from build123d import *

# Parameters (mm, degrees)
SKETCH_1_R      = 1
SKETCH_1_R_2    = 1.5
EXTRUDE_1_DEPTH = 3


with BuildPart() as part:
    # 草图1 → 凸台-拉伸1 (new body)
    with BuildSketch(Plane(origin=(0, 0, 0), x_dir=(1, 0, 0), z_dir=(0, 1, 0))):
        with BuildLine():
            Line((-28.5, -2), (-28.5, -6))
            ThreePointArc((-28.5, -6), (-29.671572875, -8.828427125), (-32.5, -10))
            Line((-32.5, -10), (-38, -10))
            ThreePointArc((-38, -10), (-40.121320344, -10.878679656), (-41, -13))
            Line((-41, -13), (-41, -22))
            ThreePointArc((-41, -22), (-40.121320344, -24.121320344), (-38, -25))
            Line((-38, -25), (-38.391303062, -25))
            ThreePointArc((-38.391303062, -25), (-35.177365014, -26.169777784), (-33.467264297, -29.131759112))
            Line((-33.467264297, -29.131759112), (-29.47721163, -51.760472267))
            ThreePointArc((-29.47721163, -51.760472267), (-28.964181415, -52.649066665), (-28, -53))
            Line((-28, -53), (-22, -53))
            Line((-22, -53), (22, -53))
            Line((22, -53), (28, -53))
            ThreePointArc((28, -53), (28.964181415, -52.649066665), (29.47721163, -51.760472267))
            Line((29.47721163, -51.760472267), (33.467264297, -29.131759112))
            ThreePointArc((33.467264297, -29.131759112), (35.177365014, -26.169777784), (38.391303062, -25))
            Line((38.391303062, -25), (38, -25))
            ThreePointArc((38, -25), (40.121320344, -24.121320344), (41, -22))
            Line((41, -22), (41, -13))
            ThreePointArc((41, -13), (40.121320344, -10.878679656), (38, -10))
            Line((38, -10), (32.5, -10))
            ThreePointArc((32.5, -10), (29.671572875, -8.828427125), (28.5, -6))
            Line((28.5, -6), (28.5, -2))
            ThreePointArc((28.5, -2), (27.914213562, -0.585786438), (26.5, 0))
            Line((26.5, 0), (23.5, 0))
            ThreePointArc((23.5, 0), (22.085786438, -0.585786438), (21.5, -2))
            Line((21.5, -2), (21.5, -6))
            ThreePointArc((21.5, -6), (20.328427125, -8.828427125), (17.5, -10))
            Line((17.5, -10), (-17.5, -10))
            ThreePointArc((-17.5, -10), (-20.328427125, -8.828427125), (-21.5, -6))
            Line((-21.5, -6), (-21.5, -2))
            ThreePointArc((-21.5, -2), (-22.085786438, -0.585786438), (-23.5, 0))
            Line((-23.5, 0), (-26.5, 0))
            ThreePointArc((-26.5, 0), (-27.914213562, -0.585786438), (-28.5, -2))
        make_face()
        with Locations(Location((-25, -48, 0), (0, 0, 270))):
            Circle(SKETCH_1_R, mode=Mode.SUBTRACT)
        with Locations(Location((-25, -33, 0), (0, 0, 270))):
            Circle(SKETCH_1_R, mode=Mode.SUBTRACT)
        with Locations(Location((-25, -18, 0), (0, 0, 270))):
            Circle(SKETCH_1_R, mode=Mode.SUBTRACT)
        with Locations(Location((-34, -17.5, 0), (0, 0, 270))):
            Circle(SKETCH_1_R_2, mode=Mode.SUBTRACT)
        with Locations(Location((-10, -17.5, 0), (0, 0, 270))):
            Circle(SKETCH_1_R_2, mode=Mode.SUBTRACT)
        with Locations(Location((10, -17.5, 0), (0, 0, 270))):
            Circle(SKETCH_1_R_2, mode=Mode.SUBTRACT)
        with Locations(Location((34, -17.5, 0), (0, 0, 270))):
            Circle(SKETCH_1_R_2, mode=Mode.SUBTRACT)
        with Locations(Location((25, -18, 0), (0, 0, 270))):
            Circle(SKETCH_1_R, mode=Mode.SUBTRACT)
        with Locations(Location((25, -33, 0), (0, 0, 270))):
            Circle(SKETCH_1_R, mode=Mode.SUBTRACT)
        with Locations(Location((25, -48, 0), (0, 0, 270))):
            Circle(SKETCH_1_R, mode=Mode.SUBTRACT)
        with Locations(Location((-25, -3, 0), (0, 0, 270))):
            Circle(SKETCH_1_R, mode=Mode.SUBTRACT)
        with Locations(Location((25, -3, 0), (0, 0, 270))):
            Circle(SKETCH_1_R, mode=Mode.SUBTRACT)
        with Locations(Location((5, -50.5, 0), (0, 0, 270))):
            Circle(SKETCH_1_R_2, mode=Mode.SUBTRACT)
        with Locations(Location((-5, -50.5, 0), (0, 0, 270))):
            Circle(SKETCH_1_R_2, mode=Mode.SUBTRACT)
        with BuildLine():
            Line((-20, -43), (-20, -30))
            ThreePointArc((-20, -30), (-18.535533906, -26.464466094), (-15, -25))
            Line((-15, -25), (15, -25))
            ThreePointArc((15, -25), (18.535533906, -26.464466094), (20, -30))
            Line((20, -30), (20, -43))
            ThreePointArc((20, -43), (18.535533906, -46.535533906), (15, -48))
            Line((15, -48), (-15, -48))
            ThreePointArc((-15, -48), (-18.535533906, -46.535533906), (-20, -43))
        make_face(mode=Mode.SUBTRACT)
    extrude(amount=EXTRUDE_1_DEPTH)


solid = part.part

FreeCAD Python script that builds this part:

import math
import FreeCAD as App
import Part
import Sketcher
from FreeCAD import Vector
Q = App.Units.Quantity

doc = App.newDocument("Part")
params = doc.addObject("Spreadsheet::Sheet", "Params")
for row, (alias, value) in enumerate([
    ("sketch1_diameter", "2 mm"),
    ("sketch1_diameter2", "3 mm"),
    ("sketch1_radius", "4 mm"),
    ("sketch1_radius2", "3 mm"),
    ("sketch1_radius3", "5 mm"),
    ("pad1_length", "3 mm"),
], start=1):
    params.set(f"A{row}", alias)
    params.set(f"B{row}", "=" + value)
    params.setAlias(f"B{row}", alias)

body = doc.addObject("PartDesign::Body", "Body")

sketch1 = doc.addObject("Sketcher::SketchObject", "Sketch")
body.addObject(sketch1)
sketch1.AttachmentSupport = (doc.XZ_Plane, [""])
sketch1.MapMode = "FlatFace"
sketch1.addGeometry([
    Part.LineSegment(Vector(-28.5, 2, 0), Vector(-28.5, 6, 0)),
    Part.ArcOfCircle(Part.Circle(Vector(-32.5, 6, 0), Vector(0, 0, 1), 4), math.radians(0), math.radians(90)),
    Part.LineSegment(Vector(-32.5, 10, 0), Vector(-38, 10, 0)),
    Part.ArcOfCircle(Part.Circle(Vector(-38, 13, 0), Vector(0, 0, 1), 3), math.radians(180), math.radians(270)),
    Part.LineSegment(Vector(-41, 13, 0), Vector(-41, 22, 0)),
    Part.ArcOfCircle(Part.Circle(Vector(-38, 22, 0), Vector(0, 0, 1), 3), math.radians(90), math.radians(180)),
    Part.LineSegment(Vector(-38, 25, 0), Vector(-38.39, 25, 0)),
    Part.ArcOfCircle(Part.Circle(Vector(-38.39, 30, 0), Vector(0, 0, 1), 5), math.radians(-90), math.radians(-10)),
    Part.LineSegment(Vector(-33.47, 29.13, 0), Vector(-29.48, 51.76, 0)),
    Part.ArcOfCircle(Part.Circle(Vector(-28, 51.5, 0), Vector(0, 0, 1), 1.5), math.radians(90), math.radians(170)),
    Part.LineSegment(Vector(-28, 53, 0), Vector(28, 53, 0)),
    Part.ArcOfCircle(Part.Circle(Vector(28, 51.5, 0), Vector(0, 0, 1), 1.5), math.radians(10), math.radians(90)),
    Part.LineSegment(Vector(29.48, 51.76, 0), Vector(33.47, 29.13, 0)),
    Part.ArcOfCircle(Part.Circle(Vector(38.39, 30, 0), Vector(0, 0, 1), 5), math.radians(-170), math.radians(-90)),
    Part.LineSegment(Vector(38.39, 25, 0), Vector(38, 25, 0)),
    Part.ArcOfCircle(Part.Circle(Vector(38, 22, 0), Vector(0, 0, 1), 3), math.radians(0), math.radians(90)),
    Part.LineSegment(Vector(41, 22, 0), Vector(41, 13, 0)),
    Part.ArcOfCircle(Part.Circle(Vector(38, 13, 0), Vector(0, 0, 1), 3), math.radians(-90), math.radians(0)),
    Part.LineSegment(Vector(38, 10, 0), Vector(32.5, 10, 0)),
    Part.ArcOfCircle(Part.Circle(Vector(32.5, 6, 0), Vector(0, 0, 1), 4), math.radians(90), math.radians(180)),
    Part.LineSegment(Vector(28.5, 6, 0), Vector(28.5, 2, 0)),
    Part.ArcOfCircle(Part.Circle(Vector(26.5, 2, 0), Vector(0, 0, 1), 2), math.radians(-90), math.radians(0)),
    Part.LineSegment(Vector(26.5, 0, 0), Vector(23.5, 0, 0)),
    Part.ArcOfCircle(Part.Circle(Vector(23.5, 2, 0), Vector(0, 0, 1), 2), math.radians(-180), math.radians(-90)),
    Part.LineSegment(Vector(21.5, 2, 0), Vector(21.5, 6, 0)),
    Part.ArcOfCircle(Part.Circle(Vector(17.5, 6, 0), Vector(0, 0, 1), 4), math.radians(0), math.radians(90)),
    Part.LineSegment(Vector(17.5, 10, 0), Vector(-17.5, 10, 0)),
    Part.ArcOfCircle(Part.Circle(Vector(-17.5, 6, 0), Vector(0, 0, 1), 4), math.radians(90), math.radians(180)),
    Part.LineSegment(Vector(-21.5, 6, 0), Vector(-21.5, 2, 0)),
    Part.ArcOfCircle(Part.Circle(Vector(-23.5, 2, 0), Vector(0, 0, 1), 2), math.radians(-90), math.radians(0)),
    Part.LineSegment(Vector(-23.5, 0, 0), Vector(-26.5, 0, 0)),
    Part.ArcOfCircle(Part.Circle(Vector(-26.5, 2, 0), Vector(0, 0, 1), 2), math.radians(-180), math.radians(-90)),
    Part.Circle(Vector(-25, 48, 0), Vector(0, 0, 1), 1),
    Part.Circle(Vector(-5, 50.5, 0), Vector(0, 0, 1), 1.5),
    Part.Circle(Vector(-25, 33, 0), Vector(0, 0, 1), 1),
    Part.Circle(Vector(5, 50.5, 0), Vector(0, 0, 1), 1.5),
    Part.Circle(Vector(25, 48, 0), Vector(0, 0, 1), 1),
    Part.ArcOfCircle(Part.Circle(Vector(-15, 43, 0), Vector(0, 0, 1), 5), math.radians(90), math.radians(180)),
    Part.LineSegment(Vector(-20, 43, 0), Vector(-20, 30, 0)),
    Part.ArcOfCircle(Part.Circle(Vector(-15, 30, 0), Vector(0, 0, 1), 5), math.radians(180), math.radians(270)),
    Part.LineSegment(Vector(-15, 25, 0), Vector(15, 25, 0)),
    Part.ArcOfCircle(Part.Circle(Vector(15, 30, 0), Vector(0, 0, 1), 5), math.radians(-90), math.radians(0)),
    Part.LineSegment(Vector(20, 30, 0), Vector(20, 43, 0)),
    Part.ArcOfCircle(Part.Circle(Vector(15, 43, 0), Vector(0, 0, 1), 5), math.radians(0), math.radians(90)),
    Part.LineSegment(Vector(15, 48, 0), Vector(-15, 48, 0)),
    Part.Circle(Vector(25, 33, 0), Vector(0, 0, 1), 1),
    Part.Circle(Vector(-34, 17.5, 0), Vector(0, 0, 1), 1.5),
    Part.Circle(Vector(-25, 18, 0), Vector(0, 0, 1), 1),
    Part.Circle(Vector(-10, 17.5, 0), Vector(0, 0, 1), 1.5),
    Part.Circle(Vector(-25, 3, 0), Vector(0, 0, 1), 1),
    Part.Circle(Vector(10, 17.5, 0), Vector(0, 0, 1), 1.5),
    Part.Circle(Vector(25, 18, 0), Vector(0, 0, 1), 1),
    Part.Circle(Vector(34, 17.5, 0), Vector(0, 0, 1), 1.5),
    Part.Circle(Vector(25, 3, 0), Vector(0, 0, 1), 1),
], False)
sketch1.addConstraint([
    Sketcher.Constraint("Tangent", 0, 2, 1, 1),
    Sketcher.Constraint("Tangent", 1, 2, 2, 1),
    Sketcher.Constraint("Tangent", 2, 2, 3, 2),
    Sketcher.Constraint("Tangent", 3, 1, 4, 1),
    Sketcher.Constraint("Tangent", 4, 2, 5, 2),
    Sketcher.Constraint("Tangent", 5, 1, 6, 1),
    Sketcher.Constraint("Tangent", 6, 2, 7, 1),
    Sketcher.Constraint("Tangent", 7, 2, 8, 1),
    Sketcher.Constraint("Tangent", 8, 2, 9, 2),
    Sketcher.Constraint("Tangent", 9, 1, 10, 1),
    Sketcher.Constraint("Tangent", 10, 2, 11, 2),
    Sketcher.Constraint("Tangent", 11, 1, 12, 1),
    Sketcher.Constraint("Tangent", 12, 2, 13, 1),
    Sketcher.Constraint("Tangent", 13, 2, 14, 1),
    Sketcher.Constraint("Tangent", 14, 2, 15, 2),
    Sketcher.Constraint("Tangent", 15, 1, 16, 1),
    Sketcher.Constraint("Tangent", 16, 2, 17, 2),
    Sketcher.Constraint("Tangent", 17, 1, 18, 1),
    Sketcher.Constraint("Tangent", 18, 2, 19, 1),
    Sketcher.Constraint("Tangent", 19, 2, 20, 1),
    Sketcher.Constraint("Tangent", 20, 2, 21, 2),
    Sketcher.Constraint("Tangent", 21, 1, 22, 1),
    Sketcher.Constraint("Tangent", 22, 2, 23, 2),
    Sketcher.Constraint("Tangent", 23, 1, 24, 1),
    Sketcher.Constraint("Tangent", 24, 2, 25, 1),
    Sketcher.Constraint("Tangent", 25, 2, 26, 1),
    Sketcher.Constraint("Tangent", 26, 2, 27, 1),
    Sketcher.Constraint("Tangent", 27, 2, 28, 1),
    Sketcher.Constraint("Tangent", 28, 2, 29, 2),
    Sketcher.Constraint("Tangent", 29, 1, 30, 1),
    Sketcher.Constraint("Tangent", 30, 2, 31, 2),
    Sketcher.Constraint("Tangent", 31, 1, 0, 1),
    Sketcher.Constraint("Tangent", 37, 2, 38, 1),
    Sketcher.Constraint("Tangent", 38, 2, 39, 1),
    Sketcher.Constraint("Tangent", 39, 2, 40, 1),
    Sketcher.Constraint("Tangent", 40, 2, 41, 1),
    Sketcher.Constraint("Tangent", 41, 2, 42, 1),
    Sketcher.Constraint("Tangent", 42, 2, 43, 1),
    Sketcher.Constraint("Tangent", 43, 2, 44, 1),
    Sketcher.Constraint("Tangent", 44, 2, 37, 1),
    Sketcher.Constraint("Vertical", 0),
    Sketcher.Constraint("Horizontal", 2),
    Sketcher.Constraint("Vertical", 4),
    Sketcher.Constraint("Horizontal", 6),
    Sketcher.Constraint("Horizontal", 10),
    Sketcher.Constraint("Horizontal", 14),
    Sketcher.Constraint("Vertical", 16),
    Sketcher.Constraint("Horizontal", 18),
    Sketcher.Constraint("Vertical", 20),
    Sketcher.Constraint("Horizontal", 22),
    Sketcher.Constraint("Vertical", 24),
    Sketcher.Constraint("Horizontal", 26),
    Sketcher.Constraint("Vertical", 28),
    Sketcher.Constraint("Horizontal", 30),
    Sketcher.Constraint("Vertical", 38),
    Sketcher.Constraint("Horizontal", 40),
    Sketcher.Constraint("Vertical", 42),
    Sketcher.Constraint("Horizontal", 44),
    Sketcher.Constraint("Equal", 3, 5),
    Sketcher.Constraint("Equal", 9, 11),
    Sketcher.Constraint("Equal", 7, 13),
    Sketcher.Constraint("Equal", 5, 15),
    Sketcher.Constraint("Equal", 15, 17),
    Sketcher.Constraint("Equal", 1, 19),
    Sketcher.Constraint("Equal", 21, 23),
    Sketcher.Constraint("Equal", 19, 25),
    Sketcher.Constraint("Equal", 25, 27),
    Sketcher.Constraint("Equal", 23, 29),
    Sketcher.Constraint("Equal", 29, 31),
    Sketcher.Constraint("Equal", 11, 33),
    Sketcher.Constraint("Equal", 32, 34),
    Sketcher.Constraint("Equal", 33, 35),
    Sketcher.Constraint("Equal", 34, 36),
    Sketcher.Constraint("Equal", 13, 37),
    Sketcher.Constraint("Equal", 37, 39),
    Sketcher.Constraint("Equal", 39, 41),
    Sketcher.Constraint("Equal", 41, 43),
    Sketcher.Constraint("Equal", 36, 45),
    Sketcher.Constraint("Equal", 35, 46),
    Sketcher.Constraint("Equal", 45, 47),
    Sketcher.Constraint("Equal", 46, 48),
    Sketcher.Constraint("Equal", 47, 49),
    Sketcher.Constraint("Equal", 48, 50),
    Sketcher.Constraint("Equal", 49, 51),
    Sketcher.Constraint("Equal", 50, 52),
    Sketcher.Constraint("Equal", 51, 53),
    Sketcher.Constraint("Symmetric", 22, 2, 29, 1, -1, 1),
    Sketcher.Constraint("Symmetric", 7, 3, 13, 3, -2),
    Sketcher.Constraint("Symmetric", 3, 3, 17, 3, -2),
    Sketcher.Constraint("Symmetric", 21, 3, 31, 3, -2),
    Sketcher.Constraint("Symmetric", 33, 3, 35, 3, -2),
    Sketcher.Constraint("Symmetric", 32, 3, 36, 3, -2),
    Sketcher.Constraint("Symmetric", 34, 3, 45, 3, -2),
    Sketcher.Constraint("Symmetric", 48, 3, 50, 3, -2),
    Sketcher.Constraint("Symmetric", 47, 3, 51, 3, -2),
    Sketcher.Constraint("Symmetric", 46, 3, 52, 3, -2),
    Sketcher.Constraint("Symmetric", 49, 3, 53, 3, -2),
    Sketcher.Constraint("Horizontal", 19, 3, 25, 3),
    Sketcher.Constraint("Horizontal", 13, 3, 39, 3),
    Sketcher.Constraint("Horizontal", 46, 3, 48, 3),
    Sketcher.Constraint("Horizontal", 8, 2, 11, 1),
    Sketcher.Constraint("Horizontal", 36, 3, 43, 2),
    Sketcher.Constraint("Vertical", 32, 3, 34, 3),
    Sketcher.Constraint("Vertical", 34, 3, 47, 3),
    Sketcher.Constraint("Vertical", 47, 3, 49, 3),
    Sketcher.Constraint("Diameter", 32, Q("2 mm")),
    Sketcher.Constraint("Diameter", 33, Q("3 mm")),
    Sketcher.Constraint("Radius", 1, Q("4 mm")),
    Sketcher.Constraint("Radius", 3, Q("3 mm")),
    Sketcher.Constraint("Radius", 7, Q("5 mm")),
    Sketcher.Constraint("Radius", 21, Q("2 mm")),
    Sketcher.Constraint("DistanceX", 10, 1, 10, 2, Q("56 mm")),
    Sketcher.Constraint("DistanceX", 22, 2, 22, 1, Q("3 mm")),
    Sketcher.Constraint("DistanceX", 26, 2, 26, 1, Q("35 mm")),
    Sketcher.Constraint("DistanceX", 40, 1, 40, 2, Q("30 mm")),
    Sketcher.Constraint("DistanceY", 0, 1, 0, 2, Q("4 mm")),
    Sketcher.Constraint("DistanceY", 4, 1, 4, 2, Q("9 mm")),
    Sketcher.Constraint("DistanceY", 38, 2, 38, 1, Q("13 mm")),
    Sketcher.Constraint("Angle", 8, Q("80 deg")),
    Sketcher.Constraint("DistanceX", 2, 2, 2, 1, Q("5.5 mm")),
    Sketcher.Constraint("DistanceX", 32, 3, -1, 1, Q("25 mm")),
    Sketcher.Constraint("DistanceX", 33, 3, -1, 1, Q("5 mm")),
    Sketcher.Constraint("DistanceY", -1, 1, 34, 3, Q("33 mm")),
    Sketcher.Constraint("DistanceX", 37, 3, -1, 1, Q("15 mm")),
    Sketcher.Constraint("DistanceX", 46, 3, -1, 1, Q("34 mm")),
    Sketcher.Constraint("DistanceY", -1, 1, 47, 3, Q("18 mm")),
    Sketcher.Constraint("DistanceX", 48, 3, -1, 1, Q("10 mm")),
    Sketcher.Constraint("DistanceY", -1, 1, 49, 3, Q("3 mm")),
    Sketcher.Constraint("DistanceY", -1, 1, 9, 1, Q("53 mm")),
    Sketcher.Constraint("DistanceY", -1, 1, 33, 3, Q("50.5 mm")),
    Sketcher.Constraint("DistanceY", -1, 1, 46, 3, Q("17.5 mm")),
])
sketch1.setExpression("Constraints[105]", "Params.sketch1_diameter")
sketch1.setExpression("Constraints[106]", "Params.sketch1_diameter2")
sketch1.setExpression("Constraints[107]", "Params.sketch1_radius")
sketch1.setExpression("Constraints[108]", "Params.sketch1_radius2")
sketch1.setExpression("Constraints[109]", "Params.sketch1_radius3")
pad1 = doc.addObject("PartDesign::Pad", "Pad")
body.addObject(pad1)
pad1.Profile = sketch1
pad1.setExpression("Length", "Params.pad1_length")
pad1.Reversed = True

doc.recompute()
